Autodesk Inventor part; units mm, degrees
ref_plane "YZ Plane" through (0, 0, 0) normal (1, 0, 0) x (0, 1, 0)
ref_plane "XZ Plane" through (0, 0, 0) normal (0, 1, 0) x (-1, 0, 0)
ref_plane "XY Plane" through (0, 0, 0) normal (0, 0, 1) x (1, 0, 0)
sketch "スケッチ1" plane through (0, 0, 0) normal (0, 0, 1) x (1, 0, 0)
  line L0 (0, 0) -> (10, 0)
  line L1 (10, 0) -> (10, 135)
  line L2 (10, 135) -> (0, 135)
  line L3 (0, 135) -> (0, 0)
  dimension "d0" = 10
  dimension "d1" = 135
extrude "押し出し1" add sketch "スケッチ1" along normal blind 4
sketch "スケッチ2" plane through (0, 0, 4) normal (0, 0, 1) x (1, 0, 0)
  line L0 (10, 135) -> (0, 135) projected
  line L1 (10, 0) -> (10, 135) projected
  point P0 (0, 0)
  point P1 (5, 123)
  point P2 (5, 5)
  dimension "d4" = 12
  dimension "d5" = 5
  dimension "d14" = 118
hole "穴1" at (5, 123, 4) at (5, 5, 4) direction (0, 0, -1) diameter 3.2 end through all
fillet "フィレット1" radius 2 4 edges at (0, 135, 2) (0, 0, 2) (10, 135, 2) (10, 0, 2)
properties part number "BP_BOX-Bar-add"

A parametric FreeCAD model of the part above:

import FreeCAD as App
import Part
import Sketcher
from FreeCAD import Vector


def edges_at(feature, points):
    """Names of the edges that pass closest to the given points."""
    edges = feature.Shape.Edges
    near = lambda p: min(range(len(edges)), key=lambda i: edges[i].distToShape(Part.Vertex(*p))[0])
    return sorted({f"Edge{near(p) + 1}" for p in points})


def add_polygon(sketch, points):
    """Adds a closed chain of lines whose ends are joined by coincident constraints."""
    first, n = sketch.GeometryCount, len(points)
    for a, b in zip(points, points[1:] + points[:1]):
        sketch.addGeometry(Part.LineSegment(App.Vector(*a, 0), App.Vector(*b, 0)), False)
    for i in range(n):
        sketch.addConstraint(Sketcher.Constraint("Coincident", first + i, 2, first + (i + 1) % n, 1))

doc = App.newDocument("Part")
params = doc.addObject("Spreadsheet::Sheet", "Params")
for row, (alias, value) in enumerate([
    ("sketch1_width", "10 mm"),
    ("sketch1_height", "135 mm"),
    ("pad1_length", "4 mm"),
    ("sketch2_diameter", "3.2 mm"),
    ("hole_diameter", "3.2 mm"),
    ("fillet_radius", "2 mm"),
], start=1):
    params.set(f"A{row}", alias)
    params.set(f"B{row}", "=" + value)
    params.setAlias(f"B{row}", alias)

body = doc.addObject("PartDesign::Body", "Body")

# Sketch on XY plane
sketch1 = body.newObject("Sketcher::SketchObject", "Sketch")
sketch1.AttachmentSupport = (doc.getObject("XY_Plane"), [""])
sketch1.MapMode = "FlatFace"
add_polygon(sketch1, [(0, 135), (0, 0), (10, 0), (10, 135)])  # lines 0-3
sketch1.addConstraint([
    Sketcher.Constraint("Vertical", 0),
    Sketcher.Constraint("Horizontal", 1),
    Sketcher.Constraint("Vertical", 2),
    Sketcher.Constraint("Horizontal", 3),
    Sketcher.Constraint("Coincident", 0, 2, -1, 1),
    Sketcher.Constraint("DistanceX", 1, 1, 1, 2, 10.0),
    Sketcher.Constraint("DistanceY", 0, 2, 0, 1, 135.0),
])
sketch1.setExpression("Constraints[9]", "Params.sketch1_width")
sketch1.setExpression("Constraints[10]", "Params.sketch1_height")
pad1 = body.newObject("PartDesign::Pad", "Pad")
pad1.Profile = sketch1
pad1.setExpression("Length", "Params.pad1_length")

# Sketch on XY plane
sketch2 = body.newObject("Sketcher::SketchObject", "Sketch001")
sketch2.AttachmentSupport = (doc.getObject("XY_Plane"), [""])
sketch2.MapMode = "FlatFace"
sketch2.AttachmentOffset = App.Placement(Vector(0, 0, 4), App.Rotation())
sketch2.addGeometry([
    Part.Circle(Vector(5, 123, 0), Vector(0, 0, 1), 1.6),
    Part.Circle(Vector(5, 5, 0), Vector(0, 0, 1), 1.6),
], False)
sketch2.addConstraint([
    Sketcher.Constraint("Equal", 0, 1),
    Sketcher.Constraint("Vertical", 0, 3, 1, 3),
    Sketcher.Constraint("Diameter", 0, 3.2),
    Sketcher.Constraint("DistanceX", -1, 1, 0, 3, 5.0),
    Sketcher.Constraint("DistanceY", -1, 1, 0, 3, 123.0),
    Sketcher.Constraint("DistanceY", -1, 1, 1, 3, 5.0),
])
sketch2.setExpression("Constraints[2]", "Params.sketch2_diameter")
doc.recompute()
hole = body.newObject("PartDesign::Hole", "Hole")
hole.Profile = sketch2
hole.ThreadType = "None"
hole.setExpression("Diameter", "Params.hole_diameter")
hole.DepthType = "ThroughAll"
doc.recompute()

fillet = body.newObject("PartDesign::Fillet", "Fillet")
fillet.Base = (hole, edges_at(hole, [
    (0, 135, 2),
    (0, 0, 2),
    (10, 135, 2),
    (10, 0, 2),
]))
fillet.setExpression("Radius", "Params.fillet_radius")

doc.recompute()
